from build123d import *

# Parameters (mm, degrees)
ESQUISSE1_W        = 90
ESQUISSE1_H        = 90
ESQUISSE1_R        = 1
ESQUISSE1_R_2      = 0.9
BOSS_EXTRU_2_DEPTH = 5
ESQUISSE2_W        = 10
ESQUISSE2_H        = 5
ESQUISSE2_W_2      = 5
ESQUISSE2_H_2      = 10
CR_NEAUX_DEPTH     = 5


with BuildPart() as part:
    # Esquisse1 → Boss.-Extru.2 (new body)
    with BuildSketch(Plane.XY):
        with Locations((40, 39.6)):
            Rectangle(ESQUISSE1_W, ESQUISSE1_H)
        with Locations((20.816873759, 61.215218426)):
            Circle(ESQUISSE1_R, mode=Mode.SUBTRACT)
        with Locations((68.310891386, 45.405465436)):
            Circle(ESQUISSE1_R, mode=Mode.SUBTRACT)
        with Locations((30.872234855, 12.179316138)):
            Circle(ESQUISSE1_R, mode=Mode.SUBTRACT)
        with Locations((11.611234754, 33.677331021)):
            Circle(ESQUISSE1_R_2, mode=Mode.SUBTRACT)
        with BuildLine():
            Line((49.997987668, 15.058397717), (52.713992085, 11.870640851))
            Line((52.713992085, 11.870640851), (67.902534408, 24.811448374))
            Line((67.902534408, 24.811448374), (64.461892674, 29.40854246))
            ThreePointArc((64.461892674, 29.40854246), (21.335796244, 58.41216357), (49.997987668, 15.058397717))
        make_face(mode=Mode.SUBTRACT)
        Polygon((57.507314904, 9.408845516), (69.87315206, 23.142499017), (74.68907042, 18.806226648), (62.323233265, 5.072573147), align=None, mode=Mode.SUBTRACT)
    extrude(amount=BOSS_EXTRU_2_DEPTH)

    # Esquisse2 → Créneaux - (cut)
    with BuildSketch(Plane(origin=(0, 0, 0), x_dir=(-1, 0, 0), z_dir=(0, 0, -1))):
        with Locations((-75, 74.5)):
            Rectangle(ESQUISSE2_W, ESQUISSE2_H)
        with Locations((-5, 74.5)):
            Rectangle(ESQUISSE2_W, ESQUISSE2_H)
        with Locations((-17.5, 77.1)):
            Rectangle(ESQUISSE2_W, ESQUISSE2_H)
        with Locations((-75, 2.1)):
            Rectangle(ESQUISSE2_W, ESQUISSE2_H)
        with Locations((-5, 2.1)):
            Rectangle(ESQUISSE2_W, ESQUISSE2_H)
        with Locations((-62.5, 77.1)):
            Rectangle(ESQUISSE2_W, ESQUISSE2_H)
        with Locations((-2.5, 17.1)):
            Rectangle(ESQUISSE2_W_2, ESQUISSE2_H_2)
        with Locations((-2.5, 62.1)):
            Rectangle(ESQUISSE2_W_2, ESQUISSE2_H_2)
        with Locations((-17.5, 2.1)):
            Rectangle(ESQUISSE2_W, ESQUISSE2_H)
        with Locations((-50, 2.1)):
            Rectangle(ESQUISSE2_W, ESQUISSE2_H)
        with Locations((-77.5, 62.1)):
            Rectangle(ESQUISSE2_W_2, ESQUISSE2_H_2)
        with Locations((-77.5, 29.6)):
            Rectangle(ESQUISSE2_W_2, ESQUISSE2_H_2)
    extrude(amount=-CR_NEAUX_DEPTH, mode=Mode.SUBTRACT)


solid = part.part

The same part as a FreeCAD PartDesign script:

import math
import FreeCAD as App
import Part
import Sketcher
Q = App.Units.Quantity


def add_polygon(sketch, points):
    """Adds a closed chain of lines whose ends are joined by coincident constraints."""
    first, n = sketch.GeometryCount, len(points)
    for a, b in zip(points, points[1:] + points[:1]):
        sketch.addGeometry(Part.LineSegment(App.Vector(*a, 0), App.Vector(*b, 0)), False)
    for i in range(n):
        sketch.addConstraint(Sketcher.Constraint("Coincident", first + i, 2, first + (i + 1) % n, 1))

doc = App.newDocument("Part")
body = doc.addObject("PartDesign::Body", "Body")

# Sketch on XY plane
sketch1 = body.newObject("Sketcher::SketchObject", "Sketch")
sketch1.AttachmentSupport = (doc.getObject("XY_Plane"), [""])
sketch1.MapMode = "FlatFace"
add_polygon(sketch1, [(-5, 84.6), (-5, -5.4), (85, -5.4), (85, 84.6)])  # lines 0-3
sketch1.addGeometry(Part.Circle(App.Vector(30.9, 12.2, 0), App.Vector(0, 0, 1), 1), False)  # 4
sketch1.addGeometry(Part.Circle(App.Vector(11.6, 33.7, 0), App.Vector(0, 0, 1), 0.9), False)  # 5
add_polygon(sketch1, [(62.3, 5.1), (57.5, 9.4), (69.9, 23.1), (74.7, 18.8)])  # lines 6-9
sketch1.addGeometry(Part.LineSegment(App.Vector(52.7, 11.9, 0), App.Vector(50, 15.1, 0)), False)  # 10
sketch1.addGeometry(Part.ArcOfCircle(Part.Circle(App.Vector(40, 39.6, 0), App.Vector(0, 0, 1), 26.5), math.radians(-23), math.radians(292)), False)  # 11
sketch1.addGeometry(Part.LineSegment(App.Vector(64.5, 29.4, 0), App.Vector(67.9, 24.8, 0)), False)  # 12
sketch1.addGeometry(Part.LineSegment(App.Vector(67.9, 24.8, 0), App.Vector(52.7, 11.9, 0)), False)  # 13
sketch1.addGeometry(Part.Circle(App.Vector(20.8, 61.2, 0), App.Vector(0, 0, 1), 1), False)  # 14
sketch1.addGeometry(Part.Circle(App.Vector(68.3, 45.4, 0), App.Vector(0, 0, 1), 1), False)  # 15
sketch1.addConstraint(Sketcher.Constraint("Coincident", 10, 2, 11, 2))
sketch1.addConstraint(Sketcher.Constraint("Coincident", 11, 1, 12, 1))
sketch1.addConstraint(Sketcher.Constraint("Coincident", 12, 2, 13, 1))
sketch1.addConstraint(Sketcher.Constraint("Coincident", 13, 2, 10, 1))
sketch1.addConstraint(Sketcher.Constraint("Vertical", 0))
sketch1.addConstraint(Sketcher.Constraint("Horizontal", 1))
sketch1.addConstraint(Sketcher.Constraint("Vertical", 2))
sketch1.addConstraint(Sketcher.Constraint("Horizontal", 3))
sketch1.addConstraint(Sketcher.Constraint("Equal", 4, 14))
sketch1.addConstraint(Sketcher.Constraint("Equal", 14, 15))
sketch1.addConstraint(Sketcher.Constraint("Perpendicular", 6, 7))
sketch1.addConstraint(Sketcher.Constraint("Perpendicular", 7, 8))
sketch1.addConstraint(Sketcher.Constraint("Perpendicular", 8, 9))
sketch1.addConstraint(Sketcher.Constraint("Perpendicular", 10, 13))
sketch1.addConstraint(Sketcher.Constraint("Equal", 3, 0))
sketch1.addConstraint(Sketcher.Constraint("Diameter", 4, Q("2 mm")))
sketch1.addConstraint(Sketcher.Constraint("Diameter", 5, Q("1.8 mm")))
sketch1.addConstraint(Sketcher.Constraint("Radius", 11, Q("26.5 mm")))
sketch1.addConstraint(Sketcher.Constraint("DistanceX", 1, 1, 1, 2, Q("90 mm")))
sketch1.addConstraint(Sketcher.Constraint("Angle", 6, Q("138 deg")))
sketch1.addConstraint(Sketcher.Constraint("DistanceX", -1, 1, 11, 3, Q("40 mm")))
sketch1.addConstraint(Sketcher.Constraint("DistanceX", 0, 2, -1, 1, Q("5 mm")))
sketch1.addConstraint(Sketcher.Constraint("DistanceY", 0, 2, 11, 3, Q("45 mm")))
sketch1.addConstraint(Sketcher.Constraint("DistanceY", -1, 1, 11, 3, Q("39.6 mm")))
sketch1.addConstraint(Sketcher.Constraint("DistanceX", 5, 3, 4, 3, Q("19.261 mm")))
sketch1.addConstraint(Sketcher.Constraint("DistanceX", 4, 3, 9, 2, Q("31.450998 mm")))
sketch1.addConstraint(Sketcher.Constraint("DistanceX", 11, 1, 15, 3, Q("3.848999 mm")))
sketch1.addConstraint(Sketcher.Constraint("DistanceY", -1, 1, 7, 2, Q("23.142499 mm")))
sketch1.addConstraint(Sketcher.Constraint("DistanceY", 10, 2, 7, 2, Q("8.084101 mm")))
sketch1.addConstraint(Sketcher.Constraint("DistanceY", -1, 1, 5, 3, Q("33.677331 mm")))
sketch1.addConstraint(Sketcher.Constraint("DistanceY", -1, 1, 14, 3, Q("61.215218 mm")))
sketch1.addConstraint(Sketcher.Constraint("DistanceX", -1, 1, 15, 3, Q("68.310891 mm")))
sketch1.addConstraint(Sketcher.Constraint("DistanceX", -1, 1, 8, 2, Q("74.68907 mm")))
sketch1.addConstraint(Sketcher.Constraint("DistanceY", -1, 1, 12, 2, Q("24.811448 mm")))
sketch1.addConstraint(Sketcher.Constraint("DistanceY", -1, 1, 13, 2, Q("11.870641 mm")))
sketch1.addConstraint(Sketcher.Constraint("DistanceX", 5, 3, 14, 3, Q("9.205639 mm")))
sketch1.addConstraint(Sketcher.Constraint("DistanceY", 4, 3, 15, 3, Q("33.226149 mm")))
sketch1.addConstraint(Sketcher.Constraint("DistanceX", 4, 3, 6, 2, Q("26.63508 mm")))
sketch1.addConstraint(Sketcher.Constraint("DistanceY", 6, 2, 4, 3, Q("2.770471 mm")))
sketch1.addConstraint(Sketcher.Constraint("DistanceY", 6, 2, 8, 2, Q("9.397381 mm")))
sketch1.addConstraint(Sketcher.Constraint("DistanceX", 11, 1, 12, 2, Q("3.440642 mm")))
pad1 = body.newObject("PartDesign::Pad", "Pad")
pad1.Profile = sketch1
pad1.Length = 5

# Sketch on XY plane
sketch2 = body.newObject("Sketcher::SketchObject", "Sketch001")
sketch2.AttachmentSupport = (doc.getObject("XY_Plane"), [""])
sketch2.MapMode = "FlatFace"
add_polygon(sketch2, [(80, 77), (80, 72), (70, 72), (70, 77)])  # lines 0-3
add_polygon(sketch2, [(10, 77), (10, 72), (0, 72), (0, 77)])  # lines 4-7
add_polygon(sketch2, [(22, 80), (22, 75), (12, 75), (12, 80)])  # lines 8-11
add_polygon(sketch2, [(80, 5), (80, 0), (70, 0), (70, 5)])  # lines 12-15
add_polygon(sketch2, [(10, 5), (10, 0), (0, 0), (0, 5)])  # lines 16-19
add_polygon(sketch2, [(68, 80), (68, 75), (58, 75), (58, 80)])  # lines 20-23
add_polygon(sketch2, [(5, 22), (5, 12), (0, 12), (0, 22)])  # lines 24-27
add_polygon(sketch2, [(5, 67), (5, 57), (0, 57), (0, 67)])  # lines 28-31
add_polygon(sketch2, [(22, 5), (22, 0), (12, 0), (12, 5)])  # lines 32-35
add_polygon(sketch2, [(55, 5), (55, 0), (45, 0), (45, 5)])  # lines 36-39
add_polygon(sketch2, [(80, 67), (80, 57), (75, 57), (75, 67)])  # lines 40-43
add_polygon(sketch2, [(80, 35), (80, 25), (75, 25), (75, 35)])  # lines 44-47
sketch2.addConstraint(Sketcher.Constraint("Vertical", 0))
sketch2.addConstraint(Sketcher.Constraint("Horizontal", 1))
sketch2.addConstraint(Sketcher.Constraint("Vertical", 2))
sketch2.addConstraint(Sketcher.Constraint("Horizontal", 3))
sketch2.addConstraint(Sketcher.Constraint("Vertical", 4))
sketch2.addConstraint(Sketcher.Constraint("Horizontal", 5))
sketch2.addConstraint(Sketcher.Constraint("Vertical", 6))
sketch2.addConstraint(Sketcher.Constraint("Horizontal", 7))
sketch2.addConstraint(Sketcher.Constraint("Vertical", 8))
sketch2.addConstraint(Sketcher.Constraint("Horizontal", 9))
sketch2.addConstraint(Sketcher.Constraint("Vertical", 10))
sketch2.addConstraint(Sketcher.Constraint("Horizontal", 11))
sketch2.addConstraint(Sketcher.Constraint("Vertical", 12))
sketch2.addConstraint(Sketcher.Constraint("Horizontal", 13))
sketch2.addConstraint(Sketcher.Constraint("Vertical", 14))
sketch2.addConstraint(Sketcher.Constraint("Horizontal", 15))
sketch2.addConstraint(Sketcher.Constraint("Vertical", 16))
sketch2.addConstraint(Sketcher.Constraint("Horizontal", 17))
sketch2.addConstraint(Sketcher.Constraint("Vertical", 18))
sketch2.addConstraint(Sketcher.Constraint("Horizontal", 19))
sketch2.addConstraint(Sketcher.Constraint("Vertical", 20))
sketch2.addConstraint(Sketcher.Constraint("Horizontal", 21))
sketch2.addConstraint(Sketcher.Constraint("Vertical", 22))
sketch2.addConstraint(Sketcher.Constraint("Horizontal", 23))
sketch2.addConstraint(Sketcher.Constraint("Vertical", 24))
sketch2.addConstraint(Sketcher.Constraint("Horizontal", 25))
sketch2.addConstraint(Sketcher.Constraint("Vertical", 26))
sketch2.addConstraint(Sketcher.Constraint("Horizontal", 27))
sketch2.addConstraint(Sketcher.Constraint("Vertical", 28))
sketch2.addConstraint(Sketcher.Constraint("Horizontal", 29))
sketch2.addConstraint(Sketcher.Constraint("Vertical", 30))
sketch2.addConstraint(Sketcher.Constraint("Horizontal", 31))
sketch2.addConstraint(Sketcher.Constraint("Vertical", 32))
sketch2.addConstraint(Sketcher.Constraint("Horizontal", 33))
sketch2.addConstraint(Sketcher.Constraint("Vertical", 34))
sketch2.addConstraint(Sketcher.Constraint("Horizontal", 35))
sketch2.addConstraint(Sketcher.Constraint("Vertical", 36))
sketch2.addConstraint(Sketcher.Constraint("Horizontal", 37))
sketch2.addConstraint(Sketcher.Constraint("Vertical", 38))
sketch2.addConstraint(Sketcher.Constraint("Horizontal", 39))
sketch2.addConstraint(Sketcher.Constraint("Vertical", 40))
sketch2.addConstraint(Sketcher.Constraint("Horizontal", 41))
sketch2.addConstraint(Sketcher.Constraint("Vertical", 42))
sketch2.addConstraint(Sketcher.Constraint("Horizontal", 43))
sketch2.addConstraint(Sketcher.Constraint("Vertical", 44))
sketch2.addConstraint(Sketcher.Constraint("Horizontal", 45))
sketch2.addConstraint(Sketcher.Constraint("Vertical", 46))
sketch2.addConstraint(Sketcher.Constraint("Horizontal", 47))
sketch2.addConstraint(Sketcher.Constraint("PointOnObject", 5, 2, -2))
sketch2.addConstraint(Sketcher.Constraint("PointOnObject", 17, 2, -2))
sketch2.addConstraint(Sketcher.Constraint("PointOnObject", 25, 2, -2))
sketch2.addConstraint(Sketcher.Constraint("PointOnObject", 29, 2, -2))
sketch2.addConstraint(Sketcher.Constraint("Horizontal", 1, 2, 4, 2))
sketch2.addConstraint(Sketcher.Constraint("Horizontal", 3, 2, 6, 2))
sketch2.addConstraint(Sketcher.Constraint("Horizontal", 13, 2, 16, 2))
sketch2.addConstraint(Sketcher.Constraint("Horizontal", 15, 2, 18, 2))
sketch2.addConstraint(Sketcher.Constraint("Horizontal", 9, 2, 20, 2))
sketch2.addConstraint(Sketcher.Constraint("Horizontal", 11, 2, 22, 2))
sketch2.addConstraint(Sketcher.Constraint("Horizontal", 17, 2, 32, 2))
sketch2.addConstraint(Sketcher.Constraint("Horizontal", 19, 2, 34, 2))
sketch2.addConstraint(Sketcher.Constraint("Horizontal", 33, 2, 36, 2))
sketch2.addConstraint(Sketcher.Constraint("Horizontal", 35, 2, 38, 2))
sketch2.addConstraint(Sketcher.Constraint("Horizontal", 29, 2, 40, 2))
sketch2.addConstraint(Sketcher.Constraint("Horizontal", 31, 2, 42, 2))
sketch2.addConstraint(Sketcher.Constraint("Vertical", 3, 2, 12, 2))
sketch2.addConstraint(Sketcher.Constraint("Vertical", 2, 2, 13, 2))
sketch2.addConstraint(Sketcher.Constraint("Vertical", 7, 2, 16, 2))
sketch2.addConstraint(Sketcher.Constraint("Vertical", 27, 2, 28, 2))
sketch2.addConstraint(Sketcher.Constraint("Vertical", 11, 2, 32, 2))
sketch2.addConstraint(Sketcher.Constraint("Vertical", 10, 2, 33, 2))
sketch2.addConstraint(Sketcher.Constraint("Vertical", 15, 2, 40, 2))
sketch2.addConstraint(Sketcher.Constraint("Vertical", 43, 2, 44, 2))
sketch2.addConstraint(Sketcher.Constraint("Vertical", 42, 2, 45, 2))
sketch2.addConstraint(Sketcher.Constraint("Equal", 3, 5))
sketch2.addConstraint(Sketcher.Constraint("Equal", 7, 9))
sketch2.addConstraint(Sketcher.Constraint("Equal", 19, 21))
sketch2.addConstraint(Sketcher.Constraint("Equal", 35, 37))
sketch2.addConstraint(Sketcher.Constraint("Equal", 31, 41))
sketch2.addConstraint(Sketcher.Constraint("Equal", 47, 0))
sketch2.addConstraint(Sketcher.Constraint("Equal", 6, 8))
sketch2.addConstraint(Sketcher.Constraint("Equal", 10, 12))
sketch2.addConstraint(Sketcher.Constraint("Equal", 39, 24))
sketch2.addConstraint(Sketcher.Constraint("Equal", 26, 28))
sketch2.addConstraint(Sketcher.Constraint("Equal", 42, 44))
sketch2.addConstraint(Sketcher.Constraint("DistanceX", 1, 2, 1, 1, Q("10 mm")))
sketch2.addConstraint(Sketcher.Constraint("DistanceX", 25, 2, 25, 1, Q("5 mm")))
sketch2.addConstraint(Sketcher.Constraint("DistanceX", -1, 1, 0, 2, Q("80 mm")))
sketch2.addConstraint(Sketcher.Constraint("DistanceY", -1, 1, 0, 2, Q("72 mm")))
sketch2.addConstraint(Sketcher.Constraint("DistanceX", -1, 1, 36, 2, Q("55 mm")))
sketch2.addConstraint(Sketcher.Constraint("DistanceY", 12, 2, 8, 2, Q("75 mm")))
sketch2.addConstraint(Sketcher.Constraint("DistanceX", 8, 2, 20, 2, Q("45 mm")))
sketch2.addConstraint(Sketcher.Constraint("DistanceY", 15, 2, 44, 2, Q("20 mm")))
sketch2.addConstraint(Sketcher.Constraint("DistanceX", -1, 1, 8, 2, Q("22.5 mm")))
sketch2.addConstraint(Sketcher.Constraint("DistanceY", -1, 1, 8, 2, Q("74.6 mm")))
sketch2.addConstraint(Sketcher.Constraint("DistanceY", -1, 1, 24, 2, Q("12.1 mm")))
sketch2.addConstraint(Sketcher.Constraint("DistanceY", -1, 1, 28, 2, Q("57.1 mm")))
pocket1 = body.newObject("PartDesign::Pocket", "Pocket")
pocket1.Profile = sketch2
pocket1.Length = 5
pocket1.Reversed = True

doc.recompute()
